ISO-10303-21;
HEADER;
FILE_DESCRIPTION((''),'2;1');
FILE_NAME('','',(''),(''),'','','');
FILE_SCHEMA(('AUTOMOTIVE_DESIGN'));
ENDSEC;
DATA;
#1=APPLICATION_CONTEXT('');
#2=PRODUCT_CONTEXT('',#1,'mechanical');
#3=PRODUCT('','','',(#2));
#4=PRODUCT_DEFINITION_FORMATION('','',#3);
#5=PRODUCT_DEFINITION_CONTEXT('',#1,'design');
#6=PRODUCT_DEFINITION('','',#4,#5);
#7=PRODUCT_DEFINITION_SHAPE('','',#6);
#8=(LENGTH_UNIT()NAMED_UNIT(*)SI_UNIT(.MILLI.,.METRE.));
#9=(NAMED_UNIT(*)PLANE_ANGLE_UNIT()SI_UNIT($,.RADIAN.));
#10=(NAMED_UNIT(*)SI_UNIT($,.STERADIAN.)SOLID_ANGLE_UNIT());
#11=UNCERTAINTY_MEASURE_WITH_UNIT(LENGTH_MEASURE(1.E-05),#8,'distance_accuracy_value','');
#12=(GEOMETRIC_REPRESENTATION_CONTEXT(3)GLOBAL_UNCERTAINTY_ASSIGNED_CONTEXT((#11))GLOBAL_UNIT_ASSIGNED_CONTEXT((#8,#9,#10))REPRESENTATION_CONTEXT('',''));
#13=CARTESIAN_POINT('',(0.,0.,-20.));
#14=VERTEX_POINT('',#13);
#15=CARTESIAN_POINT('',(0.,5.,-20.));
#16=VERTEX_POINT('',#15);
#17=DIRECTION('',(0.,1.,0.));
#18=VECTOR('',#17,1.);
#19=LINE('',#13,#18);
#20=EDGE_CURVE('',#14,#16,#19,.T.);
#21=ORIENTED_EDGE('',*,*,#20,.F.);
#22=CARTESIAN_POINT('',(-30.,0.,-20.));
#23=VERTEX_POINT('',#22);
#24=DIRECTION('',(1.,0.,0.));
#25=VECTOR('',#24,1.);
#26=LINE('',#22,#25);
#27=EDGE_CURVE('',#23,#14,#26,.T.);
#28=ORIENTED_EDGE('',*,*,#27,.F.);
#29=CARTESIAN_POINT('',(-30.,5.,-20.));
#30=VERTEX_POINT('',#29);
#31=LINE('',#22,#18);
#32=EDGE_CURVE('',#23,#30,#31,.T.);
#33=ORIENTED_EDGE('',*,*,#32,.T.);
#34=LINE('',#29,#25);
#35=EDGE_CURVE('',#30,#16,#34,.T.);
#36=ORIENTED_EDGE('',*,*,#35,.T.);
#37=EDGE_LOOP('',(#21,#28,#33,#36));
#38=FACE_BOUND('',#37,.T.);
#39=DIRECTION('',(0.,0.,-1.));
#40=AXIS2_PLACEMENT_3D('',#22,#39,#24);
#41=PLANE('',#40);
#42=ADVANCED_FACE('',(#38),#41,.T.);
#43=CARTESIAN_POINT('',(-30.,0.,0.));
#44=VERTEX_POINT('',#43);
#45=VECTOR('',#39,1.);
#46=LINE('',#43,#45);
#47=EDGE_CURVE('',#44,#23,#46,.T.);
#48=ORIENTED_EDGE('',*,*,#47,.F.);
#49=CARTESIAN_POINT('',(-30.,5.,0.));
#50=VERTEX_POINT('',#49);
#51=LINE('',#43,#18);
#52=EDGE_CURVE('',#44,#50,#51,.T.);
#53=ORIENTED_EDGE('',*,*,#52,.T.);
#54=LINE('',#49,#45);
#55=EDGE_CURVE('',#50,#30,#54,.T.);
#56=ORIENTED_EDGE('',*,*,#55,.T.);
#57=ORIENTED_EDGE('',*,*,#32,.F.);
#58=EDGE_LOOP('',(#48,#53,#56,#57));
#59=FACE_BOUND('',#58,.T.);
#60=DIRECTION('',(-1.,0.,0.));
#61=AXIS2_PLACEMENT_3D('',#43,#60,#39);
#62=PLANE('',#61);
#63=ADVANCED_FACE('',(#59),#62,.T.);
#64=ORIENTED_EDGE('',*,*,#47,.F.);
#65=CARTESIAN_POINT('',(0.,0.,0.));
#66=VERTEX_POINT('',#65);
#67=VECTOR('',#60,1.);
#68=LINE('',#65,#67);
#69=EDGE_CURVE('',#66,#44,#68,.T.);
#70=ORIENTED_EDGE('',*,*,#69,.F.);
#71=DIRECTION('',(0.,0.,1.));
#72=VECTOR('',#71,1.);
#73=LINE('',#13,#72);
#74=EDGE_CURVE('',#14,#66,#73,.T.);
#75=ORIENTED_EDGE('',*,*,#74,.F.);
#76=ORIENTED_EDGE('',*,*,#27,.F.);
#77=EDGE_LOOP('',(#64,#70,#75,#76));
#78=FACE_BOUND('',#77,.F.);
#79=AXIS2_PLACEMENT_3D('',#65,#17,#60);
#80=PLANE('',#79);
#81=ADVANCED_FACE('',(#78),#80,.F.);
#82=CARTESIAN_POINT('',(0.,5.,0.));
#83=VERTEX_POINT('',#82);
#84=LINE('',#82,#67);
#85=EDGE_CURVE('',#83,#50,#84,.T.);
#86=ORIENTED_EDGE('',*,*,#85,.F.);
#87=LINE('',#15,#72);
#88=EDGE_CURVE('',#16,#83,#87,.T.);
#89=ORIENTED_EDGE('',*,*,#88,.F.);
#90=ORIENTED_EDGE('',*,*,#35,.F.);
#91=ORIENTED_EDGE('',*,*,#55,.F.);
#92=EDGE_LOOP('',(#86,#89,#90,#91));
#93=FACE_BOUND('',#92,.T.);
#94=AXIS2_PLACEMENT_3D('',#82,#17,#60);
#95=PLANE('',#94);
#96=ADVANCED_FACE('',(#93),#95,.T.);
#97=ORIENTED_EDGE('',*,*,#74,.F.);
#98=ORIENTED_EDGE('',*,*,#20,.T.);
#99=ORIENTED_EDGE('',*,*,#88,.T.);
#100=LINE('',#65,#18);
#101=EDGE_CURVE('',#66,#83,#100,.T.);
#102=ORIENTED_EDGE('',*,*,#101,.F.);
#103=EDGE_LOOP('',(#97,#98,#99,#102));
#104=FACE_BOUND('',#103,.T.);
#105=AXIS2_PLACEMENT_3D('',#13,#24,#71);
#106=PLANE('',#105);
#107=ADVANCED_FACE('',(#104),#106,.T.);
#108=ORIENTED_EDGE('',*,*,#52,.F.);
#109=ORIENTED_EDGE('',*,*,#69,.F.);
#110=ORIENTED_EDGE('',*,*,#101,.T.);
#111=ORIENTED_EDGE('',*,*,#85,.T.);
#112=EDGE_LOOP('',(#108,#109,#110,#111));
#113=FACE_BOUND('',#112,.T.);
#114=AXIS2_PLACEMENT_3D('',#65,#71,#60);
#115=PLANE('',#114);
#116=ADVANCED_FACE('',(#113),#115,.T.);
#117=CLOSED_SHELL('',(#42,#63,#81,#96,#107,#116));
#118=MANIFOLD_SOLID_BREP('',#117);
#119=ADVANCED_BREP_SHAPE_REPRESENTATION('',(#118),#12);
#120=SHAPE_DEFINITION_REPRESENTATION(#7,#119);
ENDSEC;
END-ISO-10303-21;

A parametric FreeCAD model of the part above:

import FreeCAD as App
import Part
import Sketcher


def add_polygon(sketch, points):
    """Adds a closed chain of lines whose ends are joined by coincident constraints."""
    first, n = sketch.GeometryCount, len(points)
    for a, b in zip(points, points[1:] + points[:1]):
        sketch.addGeometry(Part.LineSegment(App.Vector(*a, 0), App.Vector(*b, 0)), False)
    for i in range(n):
        sketch.addConstraint(Sketcher.Constraint("Coincident", first + i, 2, first + (i + 1) % n, 1))

doc = App.newDocument("Part")
params = doc.addObject("Spreadsheet::Sheet", "Params")
for row, (alias, value) in enumerate([
    ("sketch1_width", "30 mm"),
    ("sketch1_height", "20 mm"),
    ("pad1_length", "5 mm"),
], start=1):
    params.set(f"A{row}", alias)
    params.set(f"B{row}", "=" + value)
    params.setAlias(f"B{row}", alias)

body = doc.addObject("PartDesign::Body", "Body")

# Sketch on XZ plane
sketch1 = doc.addObject("Sketcher::SketchObject", "Sketch")
body.addObject(sketch1)
sketch1.AttachmentSupport = (doc.XZ_Plane, [""])
sketch1.MapMode = "FlatFace"
add_polygon(sketch1, [(-30, 0), (0, 0), (0, -20), (-30, -20)])  # lines 0-3
sketch1.addConstraint(Sketcher.Constraint("Horizontal", 0))
sketch1.addConstraint(Sketcher.Constraint("Vertical", 1))
sketch1.addConstraint(Sketcher.Constraint("Horizontal", 2))
sketch1.addConstraint(Sketcher.Constraint("Vertical", 3))
sketch1.addConstraint(Sketcher.Constraint("Coincident", 0, 2, -1, 1))
sketch1.addConstraint(Sketcher.Constraint("DistanceX", 0, 1, 0, 2, 30.0))
sketch1.addConstraint(Sketcher.Constraint("DistanceY", 1, 2, 1, 1, 20.0))
sketch1.setExpression("Constraints[9]", "Params.sketch1_width")
sketch1.setExpression("Constraints[10]", "Params.sketch1_height")
pad1 = doc.addObject("PartDesign::Pad", "Pad")
body.addObject(pad1)
pad1.Profile = sketch1
pad1.setExpression("Length", "Params.pad1_length")
pad1.Reversed = True

doc.recompute()
